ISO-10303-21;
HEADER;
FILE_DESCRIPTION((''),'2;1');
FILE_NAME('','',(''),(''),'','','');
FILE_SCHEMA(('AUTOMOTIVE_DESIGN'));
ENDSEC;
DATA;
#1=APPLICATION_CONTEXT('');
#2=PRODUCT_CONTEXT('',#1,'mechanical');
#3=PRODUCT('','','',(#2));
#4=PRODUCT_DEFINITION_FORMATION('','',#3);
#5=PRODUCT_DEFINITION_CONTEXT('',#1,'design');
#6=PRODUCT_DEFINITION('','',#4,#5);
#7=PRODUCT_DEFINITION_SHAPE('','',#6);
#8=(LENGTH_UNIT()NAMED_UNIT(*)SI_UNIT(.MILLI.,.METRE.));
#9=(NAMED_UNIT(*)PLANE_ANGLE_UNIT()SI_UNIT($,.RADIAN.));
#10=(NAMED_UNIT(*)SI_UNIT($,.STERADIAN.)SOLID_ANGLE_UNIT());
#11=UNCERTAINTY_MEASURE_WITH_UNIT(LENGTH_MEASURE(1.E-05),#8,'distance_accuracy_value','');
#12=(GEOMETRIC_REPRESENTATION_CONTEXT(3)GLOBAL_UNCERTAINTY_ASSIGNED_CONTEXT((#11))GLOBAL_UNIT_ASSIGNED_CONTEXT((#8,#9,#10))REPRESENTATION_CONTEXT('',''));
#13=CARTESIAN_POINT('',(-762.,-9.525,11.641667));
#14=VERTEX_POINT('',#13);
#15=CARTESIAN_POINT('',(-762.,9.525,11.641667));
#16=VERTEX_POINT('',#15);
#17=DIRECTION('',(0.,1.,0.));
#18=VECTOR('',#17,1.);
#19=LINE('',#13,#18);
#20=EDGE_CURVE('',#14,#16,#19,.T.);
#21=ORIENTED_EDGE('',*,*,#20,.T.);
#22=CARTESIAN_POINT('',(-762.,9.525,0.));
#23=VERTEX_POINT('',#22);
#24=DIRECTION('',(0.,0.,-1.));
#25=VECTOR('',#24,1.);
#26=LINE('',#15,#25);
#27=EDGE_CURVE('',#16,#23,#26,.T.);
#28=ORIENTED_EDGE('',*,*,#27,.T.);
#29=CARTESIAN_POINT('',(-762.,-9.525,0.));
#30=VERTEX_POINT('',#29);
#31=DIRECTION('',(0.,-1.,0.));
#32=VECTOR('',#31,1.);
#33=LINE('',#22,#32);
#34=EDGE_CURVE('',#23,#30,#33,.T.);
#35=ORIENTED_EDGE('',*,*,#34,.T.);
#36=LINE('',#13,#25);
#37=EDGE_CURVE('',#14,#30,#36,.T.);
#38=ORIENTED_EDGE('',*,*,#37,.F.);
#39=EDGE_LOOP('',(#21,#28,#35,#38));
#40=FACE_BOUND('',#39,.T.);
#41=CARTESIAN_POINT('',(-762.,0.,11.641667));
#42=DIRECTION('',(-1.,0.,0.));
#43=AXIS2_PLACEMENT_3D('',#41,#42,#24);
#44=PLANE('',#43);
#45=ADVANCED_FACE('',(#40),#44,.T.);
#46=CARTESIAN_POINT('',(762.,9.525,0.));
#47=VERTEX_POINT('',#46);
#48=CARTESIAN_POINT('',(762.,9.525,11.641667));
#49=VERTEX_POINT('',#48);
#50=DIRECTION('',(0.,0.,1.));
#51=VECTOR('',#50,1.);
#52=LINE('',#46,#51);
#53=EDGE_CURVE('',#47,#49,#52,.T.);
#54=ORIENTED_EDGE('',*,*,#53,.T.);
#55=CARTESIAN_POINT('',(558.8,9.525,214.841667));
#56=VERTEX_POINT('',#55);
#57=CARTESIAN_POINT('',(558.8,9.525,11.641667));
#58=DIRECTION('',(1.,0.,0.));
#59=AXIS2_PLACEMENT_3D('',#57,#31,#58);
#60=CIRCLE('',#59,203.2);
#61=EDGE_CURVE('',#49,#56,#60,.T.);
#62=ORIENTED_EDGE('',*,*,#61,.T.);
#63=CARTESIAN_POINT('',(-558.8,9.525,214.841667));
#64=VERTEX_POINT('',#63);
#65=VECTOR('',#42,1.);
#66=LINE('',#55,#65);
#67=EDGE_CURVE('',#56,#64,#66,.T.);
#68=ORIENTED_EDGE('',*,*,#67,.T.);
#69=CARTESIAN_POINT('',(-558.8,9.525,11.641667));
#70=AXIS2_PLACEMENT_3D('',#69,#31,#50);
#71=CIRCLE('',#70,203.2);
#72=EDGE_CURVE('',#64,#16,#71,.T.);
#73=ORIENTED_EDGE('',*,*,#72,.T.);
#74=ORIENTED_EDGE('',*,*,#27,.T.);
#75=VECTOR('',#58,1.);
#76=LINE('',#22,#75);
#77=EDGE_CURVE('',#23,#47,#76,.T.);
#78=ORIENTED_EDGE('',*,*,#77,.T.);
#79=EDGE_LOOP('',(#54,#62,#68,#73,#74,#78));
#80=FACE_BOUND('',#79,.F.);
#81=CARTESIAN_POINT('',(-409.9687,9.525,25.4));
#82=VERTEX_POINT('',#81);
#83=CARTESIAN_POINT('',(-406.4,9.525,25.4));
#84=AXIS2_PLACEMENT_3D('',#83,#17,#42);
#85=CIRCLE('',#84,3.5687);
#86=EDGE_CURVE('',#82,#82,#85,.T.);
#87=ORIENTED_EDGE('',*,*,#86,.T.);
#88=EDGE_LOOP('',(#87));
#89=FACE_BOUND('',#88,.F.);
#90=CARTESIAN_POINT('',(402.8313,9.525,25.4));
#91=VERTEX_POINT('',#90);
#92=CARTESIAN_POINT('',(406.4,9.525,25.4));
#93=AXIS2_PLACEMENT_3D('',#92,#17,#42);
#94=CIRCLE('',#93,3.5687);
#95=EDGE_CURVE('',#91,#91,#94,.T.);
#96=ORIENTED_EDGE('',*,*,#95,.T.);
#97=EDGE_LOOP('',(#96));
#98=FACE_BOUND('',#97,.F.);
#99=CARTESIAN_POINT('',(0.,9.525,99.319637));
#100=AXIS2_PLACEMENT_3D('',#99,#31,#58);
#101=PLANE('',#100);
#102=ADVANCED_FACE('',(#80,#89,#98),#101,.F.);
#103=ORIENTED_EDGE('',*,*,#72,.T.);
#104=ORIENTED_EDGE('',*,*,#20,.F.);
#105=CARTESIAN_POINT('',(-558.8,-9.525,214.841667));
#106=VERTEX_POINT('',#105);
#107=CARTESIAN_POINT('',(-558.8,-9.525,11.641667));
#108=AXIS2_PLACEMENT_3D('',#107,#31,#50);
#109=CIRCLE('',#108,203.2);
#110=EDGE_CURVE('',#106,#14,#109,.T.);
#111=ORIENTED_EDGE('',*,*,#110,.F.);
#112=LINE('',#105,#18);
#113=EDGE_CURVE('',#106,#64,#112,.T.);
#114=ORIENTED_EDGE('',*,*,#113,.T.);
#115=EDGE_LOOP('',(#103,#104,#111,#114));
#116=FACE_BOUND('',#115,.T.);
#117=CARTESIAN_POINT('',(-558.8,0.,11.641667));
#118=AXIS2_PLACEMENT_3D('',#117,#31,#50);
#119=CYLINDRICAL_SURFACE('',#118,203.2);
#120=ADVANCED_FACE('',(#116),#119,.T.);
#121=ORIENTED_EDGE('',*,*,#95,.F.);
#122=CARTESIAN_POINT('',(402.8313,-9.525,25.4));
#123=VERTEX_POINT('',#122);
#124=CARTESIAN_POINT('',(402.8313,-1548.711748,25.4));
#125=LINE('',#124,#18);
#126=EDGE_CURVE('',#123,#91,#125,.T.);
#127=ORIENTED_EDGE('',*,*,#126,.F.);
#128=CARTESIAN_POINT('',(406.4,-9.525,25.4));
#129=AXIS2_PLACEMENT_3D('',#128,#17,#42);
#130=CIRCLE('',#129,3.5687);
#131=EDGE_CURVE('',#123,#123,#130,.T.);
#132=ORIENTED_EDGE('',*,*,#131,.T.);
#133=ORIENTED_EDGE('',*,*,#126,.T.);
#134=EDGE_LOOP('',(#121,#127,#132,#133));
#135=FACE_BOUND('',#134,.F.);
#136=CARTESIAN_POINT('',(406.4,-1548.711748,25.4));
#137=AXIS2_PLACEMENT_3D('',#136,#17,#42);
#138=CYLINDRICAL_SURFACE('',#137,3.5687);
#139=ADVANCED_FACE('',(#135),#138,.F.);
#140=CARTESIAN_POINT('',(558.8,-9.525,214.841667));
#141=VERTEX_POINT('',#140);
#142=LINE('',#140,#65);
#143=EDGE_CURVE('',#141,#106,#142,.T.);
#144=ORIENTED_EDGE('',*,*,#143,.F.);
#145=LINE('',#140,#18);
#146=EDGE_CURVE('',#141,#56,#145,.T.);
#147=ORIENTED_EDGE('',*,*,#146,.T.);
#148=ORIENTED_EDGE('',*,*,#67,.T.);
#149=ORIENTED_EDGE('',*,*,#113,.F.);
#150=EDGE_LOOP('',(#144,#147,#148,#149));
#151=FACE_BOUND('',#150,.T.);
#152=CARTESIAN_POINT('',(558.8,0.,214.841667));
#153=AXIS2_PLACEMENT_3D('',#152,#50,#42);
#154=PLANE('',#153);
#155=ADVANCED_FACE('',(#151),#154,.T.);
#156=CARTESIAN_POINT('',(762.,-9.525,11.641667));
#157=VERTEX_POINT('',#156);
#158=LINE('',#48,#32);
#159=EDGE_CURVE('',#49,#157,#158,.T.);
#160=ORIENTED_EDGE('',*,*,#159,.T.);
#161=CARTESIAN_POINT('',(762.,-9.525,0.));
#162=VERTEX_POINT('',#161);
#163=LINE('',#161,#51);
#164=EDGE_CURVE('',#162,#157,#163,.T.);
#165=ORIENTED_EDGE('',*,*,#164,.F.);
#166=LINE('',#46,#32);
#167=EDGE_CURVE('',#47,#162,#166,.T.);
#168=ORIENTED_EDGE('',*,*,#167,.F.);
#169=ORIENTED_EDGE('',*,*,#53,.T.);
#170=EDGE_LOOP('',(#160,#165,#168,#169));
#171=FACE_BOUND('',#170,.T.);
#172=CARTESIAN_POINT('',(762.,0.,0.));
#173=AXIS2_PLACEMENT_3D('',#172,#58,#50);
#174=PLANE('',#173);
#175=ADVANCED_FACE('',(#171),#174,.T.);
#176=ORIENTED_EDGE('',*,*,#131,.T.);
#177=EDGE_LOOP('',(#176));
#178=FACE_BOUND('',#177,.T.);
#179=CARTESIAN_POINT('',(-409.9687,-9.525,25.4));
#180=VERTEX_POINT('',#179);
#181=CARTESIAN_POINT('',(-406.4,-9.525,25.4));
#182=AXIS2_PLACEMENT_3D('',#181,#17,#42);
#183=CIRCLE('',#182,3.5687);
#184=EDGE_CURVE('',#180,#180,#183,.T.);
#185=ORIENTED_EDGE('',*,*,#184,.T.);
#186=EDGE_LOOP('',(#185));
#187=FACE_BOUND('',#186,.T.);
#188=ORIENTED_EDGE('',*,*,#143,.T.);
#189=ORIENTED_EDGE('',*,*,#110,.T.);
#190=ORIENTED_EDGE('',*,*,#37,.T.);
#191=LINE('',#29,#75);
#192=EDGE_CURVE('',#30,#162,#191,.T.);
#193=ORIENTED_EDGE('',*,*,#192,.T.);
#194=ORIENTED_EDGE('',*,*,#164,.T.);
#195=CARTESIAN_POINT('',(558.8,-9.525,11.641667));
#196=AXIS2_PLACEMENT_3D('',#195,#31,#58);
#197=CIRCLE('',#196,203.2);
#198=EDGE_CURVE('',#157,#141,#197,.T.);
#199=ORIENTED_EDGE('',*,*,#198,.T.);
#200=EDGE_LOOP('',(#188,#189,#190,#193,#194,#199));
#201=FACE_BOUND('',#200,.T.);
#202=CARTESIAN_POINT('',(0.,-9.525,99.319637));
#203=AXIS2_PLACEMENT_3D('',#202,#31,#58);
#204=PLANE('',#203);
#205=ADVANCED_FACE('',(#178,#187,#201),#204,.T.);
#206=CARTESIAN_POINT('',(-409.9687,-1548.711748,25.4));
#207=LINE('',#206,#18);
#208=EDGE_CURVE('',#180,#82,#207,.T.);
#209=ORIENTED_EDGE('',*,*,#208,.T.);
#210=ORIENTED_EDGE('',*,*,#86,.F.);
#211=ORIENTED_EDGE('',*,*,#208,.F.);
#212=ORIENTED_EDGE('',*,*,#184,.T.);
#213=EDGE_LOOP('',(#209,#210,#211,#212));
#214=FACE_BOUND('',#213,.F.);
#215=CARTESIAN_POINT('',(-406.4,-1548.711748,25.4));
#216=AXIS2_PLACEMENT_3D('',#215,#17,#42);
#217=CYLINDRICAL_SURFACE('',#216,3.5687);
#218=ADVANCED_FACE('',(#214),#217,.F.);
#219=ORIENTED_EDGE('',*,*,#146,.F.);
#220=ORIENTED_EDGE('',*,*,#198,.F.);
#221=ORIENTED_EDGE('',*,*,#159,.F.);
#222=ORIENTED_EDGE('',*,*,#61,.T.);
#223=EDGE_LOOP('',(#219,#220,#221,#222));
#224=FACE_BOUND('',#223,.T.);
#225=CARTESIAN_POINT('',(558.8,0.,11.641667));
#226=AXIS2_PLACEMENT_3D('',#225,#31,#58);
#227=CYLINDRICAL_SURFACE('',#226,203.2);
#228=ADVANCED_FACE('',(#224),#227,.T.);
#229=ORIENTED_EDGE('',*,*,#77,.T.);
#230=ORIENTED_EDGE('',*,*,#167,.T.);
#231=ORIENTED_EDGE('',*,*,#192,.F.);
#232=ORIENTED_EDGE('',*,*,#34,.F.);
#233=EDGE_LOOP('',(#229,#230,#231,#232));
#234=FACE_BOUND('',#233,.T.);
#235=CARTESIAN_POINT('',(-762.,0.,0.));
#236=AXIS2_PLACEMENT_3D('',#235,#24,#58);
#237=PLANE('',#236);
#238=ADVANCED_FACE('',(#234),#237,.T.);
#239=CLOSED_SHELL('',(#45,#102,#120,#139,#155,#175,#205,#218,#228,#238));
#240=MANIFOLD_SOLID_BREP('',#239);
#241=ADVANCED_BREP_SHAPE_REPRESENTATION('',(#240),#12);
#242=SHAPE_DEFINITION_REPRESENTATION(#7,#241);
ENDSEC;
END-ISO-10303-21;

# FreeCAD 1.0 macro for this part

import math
import FreeCAD as App
import Part
import Sketcher
from FreeCAD import Vector
Q = App.Units.Quantity

doc = App.newDocument("Part")
body = doc.addObject("PartDesign::Body", "Body")

sketch1 = body.newObject("Sketcher::SketchObject", "Sketch")
sketch1.AttachmentSupport = (doc.getObject("XZ_Plane"), [""])
sketch1.MapMode = "FlatFace"
sketch1.addGeometry([
    Part.LineSegment(Vector(-762, 12, 0), Vector(-762, 0, 0)),
    Part.LineSegment(Vector(-762, 0, 0), Vector(762, 0, 0)),
    Part.LineSegment(Vector(762, 0, 0), Vector(762, 12, 0)),
    Part.ArcOfCircle(Part.Circle(Vector(559, 12, 0), Vector(0, 0, 1), 203), math.radians(0), math.radians(90)),
    Part.LineSegment(Vector(559, 215, 0), Vector(-559, 215, 0)),
    Part.ArcOfCircle(Part.Circle(Vector(-559, 12, 0), Vector(0, 0, 1), 203), math.radians(90), math.radians(180)),
], False)
sketch1.addConstraint([
    Sketcher.Constraint("Coincident", 0, 2, 1, 1),
    Sketcher.Constraint("Coincident", 1, 2, 2, 1),
    Sketcher.Constraint("Tangent", 2, 2, 3, 1),
    Sketcher.Constraint("Tangent", 3, 2, 4, 1),
    Sketcher.Constraint("Tangent", 4, 2, 5, 1),
    Sketcher.Constraint("Tangent", 5, 2, 0, 1),
    Sketcher.Constraint("Vertical", 0),
    Sketcher.Constraint("Horizontal", 1),
    Sketcher.Constraint("Vertical", 2),
    Sketcher.Constraint("Horizontal", 4),
    Sketcher.Constraint("Equal", 3, 5),
    Sketcher.Constraint("Symmetric", 0, 2, 1, 2, -1, 1),
    Sketcher.Constraint("Radius", 3, Q("8 in")),
    Sketcher.Constraint("DistanceX", 1, 1, 1, 2, Q("60 in")),
    Sketcher.Constraint("DistanceY", 0, 2, 0, 1, 11.641667),
])
pad1 = body.newObject("PartDesign::Pad", "Pad")
pad1.Profile = sketch1
pad1.Type = "TwoLengths"
pad1.Length = Q("0.375 in")
pad1.Length2 = Q("0.375 in")

sketch2 = body.newObject("Sketcher::SketchObject", "Sketch001")
sketch2.AttachmentSupport = (doc.getObject("XZ_Plane"), [""])
sketch2.MapMode = "FlatFace"
sketch2.AttachmentOffset = App.Placement(Vector(0, 0, 0.375 * 25.4), App.Rotation())
sketch2.addGeometry([
    Part.Circle(Vector(-406.4, 25.4, 0), Vector(0, 0, 1), 3.6),
    Part.Circle(Vector(406.4, 25.4, 0), Vector(0, 0, 1), 3.6),
], False)
sketch2.addConstraint([
    Sketcher.Constraint("Equal", 0, 1),
    Sketcher.Constraint("Symmetric", 0, 3, 1, 3, -2),
    Sketcher.Constraint("Diameter", 0, Q("0.281 in")),
    Sketcher.Constraint("DistanceX", 0, 3, -1, 1, Q("16 in")),
    Sketcher.Constraint("DistanceY", -1, 1, 0, 3, Q("1 in")),
])
doc.recompute()
hole = body.newObject("PartDesign::Hole", "Hole")
hole.Profile = sketch2
hole.ThreadType = "None"
hole.Diameter = Q("0.281 in")
hole.DepthType = "ThroughAll"

doc.recompute()
